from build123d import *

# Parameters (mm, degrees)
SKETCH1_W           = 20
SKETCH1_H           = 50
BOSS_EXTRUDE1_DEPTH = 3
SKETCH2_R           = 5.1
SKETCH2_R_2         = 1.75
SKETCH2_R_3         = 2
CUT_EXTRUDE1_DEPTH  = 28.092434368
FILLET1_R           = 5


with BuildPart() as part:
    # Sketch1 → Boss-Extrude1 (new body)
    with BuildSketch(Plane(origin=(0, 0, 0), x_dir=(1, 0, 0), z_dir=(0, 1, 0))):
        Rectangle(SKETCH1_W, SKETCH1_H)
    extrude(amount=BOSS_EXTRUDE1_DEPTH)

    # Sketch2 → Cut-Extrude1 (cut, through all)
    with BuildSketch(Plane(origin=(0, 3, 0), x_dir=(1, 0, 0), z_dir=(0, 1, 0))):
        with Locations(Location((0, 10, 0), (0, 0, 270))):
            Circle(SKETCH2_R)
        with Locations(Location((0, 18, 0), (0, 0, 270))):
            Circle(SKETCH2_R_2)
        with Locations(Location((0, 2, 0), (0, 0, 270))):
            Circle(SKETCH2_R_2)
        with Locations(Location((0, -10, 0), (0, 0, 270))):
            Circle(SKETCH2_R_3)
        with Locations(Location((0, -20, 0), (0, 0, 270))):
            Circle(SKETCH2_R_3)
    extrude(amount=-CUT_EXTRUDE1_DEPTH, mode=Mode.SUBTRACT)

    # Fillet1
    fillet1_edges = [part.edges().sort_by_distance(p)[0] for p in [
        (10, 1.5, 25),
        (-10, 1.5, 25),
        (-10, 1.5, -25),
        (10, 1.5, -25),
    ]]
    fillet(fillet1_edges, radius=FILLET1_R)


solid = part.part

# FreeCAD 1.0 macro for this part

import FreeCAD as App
import Part
import Sketcher
Q = App.Units.Quantity


def edges_at(feature, points):
    """Names of the edges that pass closest to the given points."""
    edges = feature.Shape.Edges
    near = lambda p: min(range(len(edges)), key=lambda i: edges[i].distToShape(Part.Vertex(*p))[0])
    return sorted({f"Edge{near(p) + 1}" for p in points})

doc = App.newDocument("Part")
body = doc.addObject("PartDesign::Body", "Body")

sketch1 = body.newObject("Sketcher::SketchObject", "Sketch")
sketch1.AttachmentSupport = (doc.getObject("XZ_Plane"), [""])
sketch1.MapMode = "FlatFace"
sketch1.addGeometry([
    Part.LineSegment(App.Vector(-10, -25, 0), App.Vector(-10, 25, 0)),
    Part.LineSegment(App.Vector(-10, 25, 0), App.Vector(10, 25, 0)),
    Part.LineSegment(App.Vector(10, 25, 0), App.Vector(10, -25, 0)),
    Part.LineSegment(App.Vector(10, -25, 0), App.Vector(-10, -25, 0)),
], False)
sketch1.addConstraint([
    Sketcher.Constraint("Coincident", 0, 2, 1, 1),
    Sketcher.Constraint("Coincident", 1, 2, 2, 1),
    Sketcher.Constraint("Coincident", 2, 2, 3, 1),
    Sketcher.Constraint("Coincident", 3, 2, 0, 1),
    Sketcher.Constraint("Vertical", 0),
    Sketcher.Constraint("Horizontal", 1),
    Sketcher.Constraint("Vertical", 2),
    Sketcher.Constraint("Horizontal", 3),
    Sketcher.Constraint("Symmetric", 0, 2, 2, 2, -1, 1),
    Sketcher.Constraint("DistanceX", 1, 1, 1, 2, Q("20 mm")),
    Sketcher.Constraint("DistanceY", 0, 1, 0, 2, Q("50 mm")),
])
pad1 = body.newObject("PartDesign::Pad", "Pad")
pad1.Profile = sketch1
pad1.Length = 3
pad1.Reversed = True

sketch2 = body.newObject("Sketcher::SketchObject", "Sketch001")
sketch2.AttachmentSupport = (doc.getObject("XZ_Plane"), [""])
sketch2.MapMode = "FlatFace"
sketch2.AttachmentOffset = App.Placement(App.Vector(0, 0, -3), App.Rotation())
sketch2.addGeometry([
    Part.Circle(App.Vector(0, -10, 0), App.Vector(0, 0, 1), 5.1),
    Part.Circle(App.Vector(0, -18, 0), App.Vector(0, 0, 1), 1.8),
    Part.Circle(App.Vector(0, -2, 0), App.Vector(0, 0, 1), 1.8),
    Part.Circle(App.Vector(0, 10, 0), App.Vector(0, 0, 1), 2),
    Part.Circle(App.Vector(0, 20, 0), App.Vector(0, 0, 1), 2),
], False)
sketch2.addConstraint([
    Sketcher.Constraint("Equal", 1, 2),
    Sketcher.Constraint("Equal", 3, 4),
    Sketcher.Constraint("Symmetric", 0, 3, 3, 3, -1, 1),
    Sketcher.Constraint("PointOnObject", 0, 3, -2),
    Sketcher.Constraint("PointOnObject", 1, 3, -2),
    Sketcher.Constraint("PointOnObject", 2, 3, -2),
    Sketcher.Constraint("PointOnObject", 4, 3, -2),
    Sketcher.Constraint("Diameter", 3, Q("4 mm")),
    Sketcher.Constraint("Diameter", 0, Q("10.2 mm")),
    Sketcher.Constraint("Diameter", 1, Q("3.5 mm")),
    Sketcher.Constraint("DistanceY", 0, 3, -1, 1, Q("10 mm")),
    Sketcher.Constraint("DistanceY", 1, 3, -1, 1, Q("18 mm")),
    Sketcher.Constraint("DistanceY", 2, 3, -1, 1, Q("2 mm")),
    Sketcher.Constraint("DistanceY", -1, 1, 4, 3, Q("20 mm")),
])
pocket1 = body.newObject("PartDesign::Pocket", "Pocket")
pocket1.Profile = sketch2
pocket1.Type = "ThroughAll"
pocket1.Reversed = True
doc.recompute()

fillet = body.newObject("PartDesign::Fillet", "Fillet")
fillet.Base = (pocket1, edges_at(pocket1, [
    (10, 1.5, 25),
    (-10, 1.5, 25),
    (-10, 1.5, -25),
    (10, 1.5, -25),
]))
fillet.Radius = 5

doc.recompute()
